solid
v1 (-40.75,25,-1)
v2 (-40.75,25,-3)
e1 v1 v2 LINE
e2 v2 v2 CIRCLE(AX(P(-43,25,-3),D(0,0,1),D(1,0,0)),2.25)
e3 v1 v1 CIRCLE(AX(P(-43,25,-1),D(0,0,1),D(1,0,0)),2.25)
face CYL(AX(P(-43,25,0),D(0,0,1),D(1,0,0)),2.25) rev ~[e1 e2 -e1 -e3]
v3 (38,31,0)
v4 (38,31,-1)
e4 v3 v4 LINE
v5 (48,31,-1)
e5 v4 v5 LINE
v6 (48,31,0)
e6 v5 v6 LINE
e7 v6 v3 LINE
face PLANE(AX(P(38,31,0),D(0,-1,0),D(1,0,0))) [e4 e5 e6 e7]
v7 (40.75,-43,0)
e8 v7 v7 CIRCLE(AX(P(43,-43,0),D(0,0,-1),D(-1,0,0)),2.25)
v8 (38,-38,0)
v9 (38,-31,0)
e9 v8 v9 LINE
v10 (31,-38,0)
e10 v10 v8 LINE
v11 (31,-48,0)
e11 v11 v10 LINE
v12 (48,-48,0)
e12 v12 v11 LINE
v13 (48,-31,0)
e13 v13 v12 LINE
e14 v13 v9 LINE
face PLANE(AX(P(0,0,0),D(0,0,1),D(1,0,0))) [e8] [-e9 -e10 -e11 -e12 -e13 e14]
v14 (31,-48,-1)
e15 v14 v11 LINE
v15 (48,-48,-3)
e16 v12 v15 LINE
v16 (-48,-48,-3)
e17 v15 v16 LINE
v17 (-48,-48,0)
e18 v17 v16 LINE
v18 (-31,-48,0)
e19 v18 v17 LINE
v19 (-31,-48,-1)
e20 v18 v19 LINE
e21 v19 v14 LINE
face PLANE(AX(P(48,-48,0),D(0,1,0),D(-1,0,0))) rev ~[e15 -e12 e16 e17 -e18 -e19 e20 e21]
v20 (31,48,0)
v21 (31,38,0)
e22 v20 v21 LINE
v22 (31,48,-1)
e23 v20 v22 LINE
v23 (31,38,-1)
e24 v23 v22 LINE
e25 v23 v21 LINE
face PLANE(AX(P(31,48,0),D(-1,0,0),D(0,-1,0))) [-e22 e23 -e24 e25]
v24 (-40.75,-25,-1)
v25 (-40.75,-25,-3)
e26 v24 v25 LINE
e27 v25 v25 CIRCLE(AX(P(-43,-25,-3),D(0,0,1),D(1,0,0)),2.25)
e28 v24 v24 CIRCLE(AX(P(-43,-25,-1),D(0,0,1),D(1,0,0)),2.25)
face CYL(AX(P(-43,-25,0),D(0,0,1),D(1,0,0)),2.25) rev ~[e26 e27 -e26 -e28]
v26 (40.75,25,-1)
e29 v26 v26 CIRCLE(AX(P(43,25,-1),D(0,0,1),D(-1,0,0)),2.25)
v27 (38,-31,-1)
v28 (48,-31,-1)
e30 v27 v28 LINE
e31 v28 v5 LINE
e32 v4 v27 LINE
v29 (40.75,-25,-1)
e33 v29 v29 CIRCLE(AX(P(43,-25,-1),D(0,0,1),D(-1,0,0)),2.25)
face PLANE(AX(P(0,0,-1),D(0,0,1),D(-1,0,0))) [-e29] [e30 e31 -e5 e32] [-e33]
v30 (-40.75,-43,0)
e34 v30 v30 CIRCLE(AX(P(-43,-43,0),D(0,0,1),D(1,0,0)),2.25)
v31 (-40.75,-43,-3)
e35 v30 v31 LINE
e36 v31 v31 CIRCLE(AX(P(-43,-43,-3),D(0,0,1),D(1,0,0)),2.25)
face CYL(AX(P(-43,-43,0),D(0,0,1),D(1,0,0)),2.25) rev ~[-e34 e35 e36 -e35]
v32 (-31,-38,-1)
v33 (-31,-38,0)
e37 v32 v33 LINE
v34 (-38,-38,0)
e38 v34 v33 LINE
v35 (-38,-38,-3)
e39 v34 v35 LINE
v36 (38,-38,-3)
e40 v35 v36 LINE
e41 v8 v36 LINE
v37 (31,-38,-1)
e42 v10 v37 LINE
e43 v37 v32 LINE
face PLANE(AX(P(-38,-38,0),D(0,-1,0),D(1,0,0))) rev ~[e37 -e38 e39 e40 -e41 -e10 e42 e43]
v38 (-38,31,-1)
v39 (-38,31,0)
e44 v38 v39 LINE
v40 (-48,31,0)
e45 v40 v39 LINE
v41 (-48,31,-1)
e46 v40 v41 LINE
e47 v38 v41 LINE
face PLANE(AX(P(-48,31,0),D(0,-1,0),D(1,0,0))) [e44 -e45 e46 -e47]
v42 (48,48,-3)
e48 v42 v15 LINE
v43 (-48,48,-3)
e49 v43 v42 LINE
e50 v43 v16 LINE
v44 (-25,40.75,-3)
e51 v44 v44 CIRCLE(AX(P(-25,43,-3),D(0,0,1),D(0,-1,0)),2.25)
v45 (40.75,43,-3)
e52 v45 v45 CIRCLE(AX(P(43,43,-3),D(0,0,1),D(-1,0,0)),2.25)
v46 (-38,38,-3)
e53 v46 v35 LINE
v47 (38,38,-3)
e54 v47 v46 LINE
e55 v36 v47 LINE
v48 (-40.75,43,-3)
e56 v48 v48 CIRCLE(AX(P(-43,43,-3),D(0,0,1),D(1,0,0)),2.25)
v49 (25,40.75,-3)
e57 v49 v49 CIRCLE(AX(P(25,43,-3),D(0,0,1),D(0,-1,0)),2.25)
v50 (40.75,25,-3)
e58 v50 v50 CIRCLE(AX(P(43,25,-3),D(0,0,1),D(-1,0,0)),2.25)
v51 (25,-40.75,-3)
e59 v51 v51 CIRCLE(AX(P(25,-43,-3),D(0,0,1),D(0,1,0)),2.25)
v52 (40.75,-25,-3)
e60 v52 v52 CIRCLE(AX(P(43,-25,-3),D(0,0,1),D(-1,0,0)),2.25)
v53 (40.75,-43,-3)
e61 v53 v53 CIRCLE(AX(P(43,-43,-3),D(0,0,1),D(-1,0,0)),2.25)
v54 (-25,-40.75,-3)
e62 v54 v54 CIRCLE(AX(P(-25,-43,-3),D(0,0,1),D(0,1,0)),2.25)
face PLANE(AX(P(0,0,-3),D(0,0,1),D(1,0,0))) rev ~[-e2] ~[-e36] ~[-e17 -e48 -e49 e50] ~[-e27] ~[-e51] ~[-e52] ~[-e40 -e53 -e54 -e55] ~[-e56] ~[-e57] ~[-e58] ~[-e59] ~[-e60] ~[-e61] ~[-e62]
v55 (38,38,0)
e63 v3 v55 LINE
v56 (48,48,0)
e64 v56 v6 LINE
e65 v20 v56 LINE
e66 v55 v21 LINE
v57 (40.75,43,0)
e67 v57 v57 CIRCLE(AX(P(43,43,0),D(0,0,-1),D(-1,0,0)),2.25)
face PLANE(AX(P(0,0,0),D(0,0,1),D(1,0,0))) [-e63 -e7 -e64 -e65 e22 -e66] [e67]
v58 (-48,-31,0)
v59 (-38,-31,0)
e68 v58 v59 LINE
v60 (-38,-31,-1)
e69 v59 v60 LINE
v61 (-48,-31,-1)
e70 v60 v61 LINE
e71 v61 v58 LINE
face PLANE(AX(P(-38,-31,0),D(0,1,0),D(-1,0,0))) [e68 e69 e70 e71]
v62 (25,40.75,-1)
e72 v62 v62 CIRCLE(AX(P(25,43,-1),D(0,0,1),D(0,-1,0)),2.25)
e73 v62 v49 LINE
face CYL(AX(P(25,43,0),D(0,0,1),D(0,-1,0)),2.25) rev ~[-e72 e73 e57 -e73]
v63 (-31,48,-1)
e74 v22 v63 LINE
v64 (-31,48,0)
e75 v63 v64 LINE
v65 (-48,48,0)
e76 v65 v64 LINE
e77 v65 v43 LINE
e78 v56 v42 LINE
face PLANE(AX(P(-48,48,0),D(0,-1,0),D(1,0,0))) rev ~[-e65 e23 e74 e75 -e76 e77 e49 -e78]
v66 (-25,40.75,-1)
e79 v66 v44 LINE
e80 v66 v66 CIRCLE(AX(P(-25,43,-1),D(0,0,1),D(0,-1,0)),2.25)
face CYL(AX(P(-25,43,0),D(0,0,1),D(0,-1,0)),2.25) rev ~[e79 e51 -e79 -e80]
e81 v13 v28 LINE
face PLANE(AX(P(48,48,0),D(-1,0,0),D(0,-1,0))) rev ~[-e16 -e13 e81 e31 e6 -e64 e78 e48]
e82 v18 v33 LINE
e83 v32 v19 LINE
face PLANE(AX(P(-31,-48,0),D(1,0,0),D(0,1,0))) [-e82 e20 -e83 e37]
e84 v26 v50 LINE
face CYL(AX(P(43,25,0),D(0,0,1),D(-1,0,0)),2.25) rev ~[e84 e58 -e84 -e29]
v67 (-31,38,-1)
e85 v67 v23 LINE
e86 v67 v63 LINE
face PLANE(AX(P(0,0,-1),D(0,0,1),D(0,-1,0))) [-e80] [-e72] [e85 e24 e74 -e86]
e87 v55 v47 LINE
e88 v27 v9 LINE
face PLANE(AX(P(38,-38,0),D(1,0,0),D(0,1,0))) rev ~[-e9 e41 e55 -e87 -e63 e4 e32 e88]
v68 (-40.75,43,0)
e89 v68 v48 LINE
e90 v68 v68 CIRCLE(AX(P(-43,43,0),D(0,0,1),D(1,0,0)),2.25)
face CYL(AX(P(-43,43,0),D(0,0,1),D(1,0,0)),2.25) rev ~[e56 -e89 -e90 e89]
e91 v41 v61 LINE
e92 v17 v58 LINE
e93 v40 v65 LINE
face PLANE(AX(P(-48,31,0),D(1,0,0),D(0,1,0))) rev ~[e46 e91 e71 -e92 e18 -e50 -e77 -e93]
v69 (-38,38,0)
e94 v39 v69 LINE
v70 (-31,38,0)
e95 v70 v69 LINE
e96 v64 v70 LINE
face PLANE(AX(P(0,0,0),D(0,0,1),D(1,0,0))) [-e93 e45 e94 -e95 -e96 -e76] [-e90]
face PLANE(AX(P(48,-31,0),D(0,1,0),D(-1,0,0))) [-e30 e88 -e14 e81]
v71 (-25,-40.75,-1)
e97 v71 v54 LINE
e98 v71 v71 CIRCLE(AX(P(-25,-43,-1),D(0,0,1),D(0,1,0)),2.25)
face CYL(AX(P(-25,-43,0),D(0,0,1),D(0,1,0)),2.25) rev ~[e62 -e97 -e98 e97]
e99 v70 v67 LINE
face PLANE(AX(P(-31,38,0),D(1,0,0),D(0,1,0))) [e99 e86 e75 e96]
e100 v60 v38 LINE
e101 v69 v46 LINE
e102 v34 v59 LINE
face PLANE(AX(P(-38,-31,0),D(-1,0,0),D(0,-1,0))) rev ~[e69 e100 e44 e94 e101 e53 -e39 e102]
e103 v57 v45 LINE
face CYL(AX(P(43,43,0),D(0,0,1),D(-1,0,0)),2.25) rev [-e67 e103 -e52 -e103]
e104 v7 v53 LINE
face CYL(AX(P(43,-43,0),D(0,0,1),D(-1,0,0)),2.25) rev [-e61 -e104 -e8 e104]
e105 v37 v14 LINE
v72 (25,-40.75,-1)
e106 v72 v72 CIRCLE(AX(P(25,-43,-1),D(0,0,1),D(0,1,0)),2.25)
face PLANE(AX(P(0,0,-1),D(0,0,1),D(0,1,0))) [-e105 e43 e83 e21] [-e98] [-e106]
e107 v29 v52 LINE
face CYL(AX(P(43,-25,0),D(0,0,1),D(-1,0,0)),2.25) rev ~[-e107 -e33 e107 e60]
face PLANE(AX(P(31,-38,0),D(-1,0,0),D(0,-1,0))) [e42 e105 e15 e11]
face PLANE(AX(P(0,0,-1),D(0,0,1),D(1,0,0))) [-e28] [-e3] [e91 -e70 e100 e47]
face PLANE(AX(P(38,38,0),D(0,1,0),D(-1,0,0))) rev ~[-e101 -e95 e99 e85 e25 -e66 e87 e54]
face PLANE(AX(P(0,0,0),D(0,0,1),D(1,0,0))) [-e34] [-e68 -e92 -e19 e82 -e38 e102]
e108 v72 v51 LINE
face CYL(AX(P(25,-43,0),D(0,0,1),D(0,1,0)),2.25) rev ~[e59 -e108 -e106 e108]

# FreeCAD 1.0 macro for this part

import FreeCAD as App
import Part
import Sketcher
Q = App.Units.Quantity


def add_polygon(sketch, points):
    """Adds a closed chain of lines whose ends are joined by coincident constraints."""
    first, n = sketch.GeometryCount, len(points)
    for a, b in zip(points, points[1:] + points[:1]):
        sketch.addGeometry(Part.LineSegment(App.Vector(*a, 0), App.Vector(*b, 0)), False)
    for i in range(n):
        sketch.addConstraint(Sketcher.Constraint("Coincident", first + i, 2, first + (i + 1) % n, 1))

doc = App.newDocument("Part")
body = doc.addObject("PartDesign::Body", "Body")

# Sketch on XY plane
sketch1 = doc.addObject("Sketcher::SketchObject", "Sketch")
body.addObject(sketch1)
sketch1.AttachmentSupport = (doc.XY_Plane, [""])
sketch1.MapMode = "FlatFace"
add_polygon(sketch1, [(48, 48), (-48, 48), (-48, -48), (48, -48)])  # lines 0-3
add_polygon(sketch1, [(-38, -38), (-38, 38), (38, 38), (38, -38)])  # lines 4-7
sketch1.addConstraint(Sketcher.Constraint("Horizontal", 0))
sketch1.addConstraint(Sketcher.Constraint("Vertical", 1))
sketch1.addConstraint(Sketcher.Constraint("Horizontal", 2))
sketch1.addConstraint(Sketcher.Constraint("Vertical", 3))
sketch1.addConstraint(Sketcher.Constraint("Vertical", 4))
sketch1.addConstraint(Sketcher.Constraint("Horizontal", 5))
sketch1.addConstraint(Sketcher.Constraint("Vertical", 6))
sketch1.addConstraint(Sketcher.Constraint("Horizontal", 7))
sketch1.addConstraint(Sketcher.Constraint("Symmetric", 0, 2, 2, 2, -1, 1))
sketch1.addConstraint(Sketcher.Constraint("Symmetric", 4, 2, 6, 2, -1, 1))
sketch1.addConstraint(Sketcher.Constraint("Equal", 2, 1))
sketch1.addConstraint(Sketcher.Constraint("Equal", 7, 4))
sketch1.addConstraint(Sketcher.Constraint("DistanceX", 0, 2, 0, 1, Q("96 mm")))
sketch1.addConstraint(Sketcher.Constraint("DistanceX", 0, 2, 4, 2, Q("10 mm")))
pad1 = doc.addObject("PartDesign::Pad", "Pad")
body.addObject(pad1)
pad1.Profile = sketch1
pad1.Length = 3
pad1.Reversed = True

# Sketch on XY plane
sketch2 = doc.addObject("Sketcher::SketchObject", "Sketch001")
body.addObject(sketch2)
sketch2.AttachmentSupport = (doc.XY_Plane, [""])
sketch2.MapMode = "FlatFace"
sketch2.addGeometry(Part.Circle(App.Vector(-43, -43, 0), App.Vector(0, 0, 1), 2.25), False)
sketch2.addGeometry(Part.Circle(App.Vector(-43, 43, 0), App.Vector(0, 0, 1), 2.25), False)
sketch2.addConstraint(Sketcher.Constraint("Equal", 0, 1))
sketch2.addConstraint(Sketcher.Constraint("Symmetric", 0, 3, 1, 3, -1))
sketch2.addConstraint(Sketcher.Constraint("Diameter", 0, Q("4.5 mm")))
sketch2.addConstraint(Sketcher.Constraint("DistanceX", 0, 3, -1, 1, Q("43 mm")))
sketch2.addConstraint(Sketcher.Constraint("DistanceY", 0, 3, -1, 1, Q("43 mm")))
pocket1 = doc.addObject("PartDesign::Pocket", "Pocket")
body.addObject(pocket1)
pocket1.Profile = sketch2
pocket1.Length = 10
doc.recompute()

mirrored = doc.addObject("PartDesign::Mirrored", "Mirrored")
body.addObject(mirrored)
mirrored.Originals = [pocket1]
mirrored.MirrorPlane = (doc.YZ_Plane, [""])
body.Tip = mirrored

# Sketch on XY plane
sketch3 = doc.addObject("Sketcher::SketchObject", "Sketch002")
body.addObject(sketch3)
sketch3.AttachmentSupport = (doc.XY_Plane, [""])
sketch3.MapMode = "FlatFace"
sketch3.addGeometry(Part.Circle(App.Vector(-43, 25, 0), App.Vector(0, 0, 1), 2.25), False)
sketch3.addGeometry(Part.Circle(App.Vector(-43, -25, 0), App.Vector(0, 0, 1), 2.25), False)
sketch3.addConstraint(Sketcher.Constraint("Equal", 0, 1))
sketch3.addConstraint(Sketcher.Constraint("Symmetric", 0, 3, 1, 3, -1))
sketch3.addConstraint(Sketcher.Constraint("Diameter", 0, Q("4.5 mm")))
sketch3.addConstraint(Sketcher.Constraint("DistanceX", 0, 3, -1, 1, Q("43 mm")))
sketch3.addConstraint(Sketcher.Constraint("DistanceY", -1, 1, 0, 3, Q("25 mm")))
pocket2 = doc.addObject("PartDesign::Pocket", "Pocket001")
body.addObject(pocket2)
pocket2.Profile = sketch3
pocket2.Length = 10

# Sketch on XY plane
sketch4 = doc.addObject("Sketcher::SketchObject", "Sketch003")
body.addObject(sketch4)
sketch4.AttachmentSupport = (doc.XY_Plane, [""])
sketch4.MapMode = "FlatFace"
add_polygon(sketch4, [(-50, 31), (-50, -31), (-36, -31), (-36, 31)])  # lines 0-3
sketch4.addGeometry(Part.Circle(App.Vector(-43, -25, 0), App.Vector(0, 0, 1), 2.25), False)  # 4
sketch4.addGeometry(Part.Circle(App.Vector(-43, 25, 0), App.Vector(0, 0, 1), 2.25), False)  # 5
sketch4.addConstraint(Sketcher.Constraint("Vertical", 0))
sketch4.addConstraint(Sketcher.Constraint("Horizontal", 1))
sketch4.addConstraint(Sketcher.Constraint("Vertical", 2))
sketch4.addConstraint(Sketcher.Constraint("Horizontal", 3))
sketch4.addConstraint(Sketcher.Constraint("Equal", 4, 5))
sketch4.addConstraint(Sketcher.Constraint("Symmetric", 4, 3, 5, 3, -1))
sketch4.addConstraint(Sketcher.Constraint("Diameter", 4, Q("4.5 mm")))
sketch4.addConstraint(Sketcher.Constraint("DistanceX", 1, 1, 1, 2, Q("14 mm")))
sketch4.addConstraint(Sketcher.Constraint("DistanceY", 0, 2, 0, 1, Q("62 mm")))
sketch4.addConstraint(Sketcher.Constraint("DistanceX", 4, 3, -1, 1, Q("43 mm")))
sketch4.addConstraint(Sketcher.Constraint("DistanceY", 4, 3, -1, 1, Q("25 mm")))
sketch4.addConstraint(Sketcher.Constraint("DistanceX", 0, 2, -1, 1, Q("50 mm")))
sketch4.addConstraint(Sketcher.Constraint("DistanceY", 0, 2, -1, 1, Q("31 mm")))
pocket3 = doc.addObject("PartDesign::Pocket", "Pocket002")
body.addObject(pocket3)
pocket3.Profile = sketch4
pocket3.Length = 1
doc.recompute()

polarpattern = doc.addObject("PartDesign::PolarPattern", "PolarPattern")
body.addObject(polarpattern)
polarpattern.Originals = [pocket2, pocket3]
polarpattern.Axis = (doc.Z_Axis, [""])
polarpattern.Angle = 360
polarpattern.Occurrences = 4
body.Tip = polarpattern

doc.recompute()
